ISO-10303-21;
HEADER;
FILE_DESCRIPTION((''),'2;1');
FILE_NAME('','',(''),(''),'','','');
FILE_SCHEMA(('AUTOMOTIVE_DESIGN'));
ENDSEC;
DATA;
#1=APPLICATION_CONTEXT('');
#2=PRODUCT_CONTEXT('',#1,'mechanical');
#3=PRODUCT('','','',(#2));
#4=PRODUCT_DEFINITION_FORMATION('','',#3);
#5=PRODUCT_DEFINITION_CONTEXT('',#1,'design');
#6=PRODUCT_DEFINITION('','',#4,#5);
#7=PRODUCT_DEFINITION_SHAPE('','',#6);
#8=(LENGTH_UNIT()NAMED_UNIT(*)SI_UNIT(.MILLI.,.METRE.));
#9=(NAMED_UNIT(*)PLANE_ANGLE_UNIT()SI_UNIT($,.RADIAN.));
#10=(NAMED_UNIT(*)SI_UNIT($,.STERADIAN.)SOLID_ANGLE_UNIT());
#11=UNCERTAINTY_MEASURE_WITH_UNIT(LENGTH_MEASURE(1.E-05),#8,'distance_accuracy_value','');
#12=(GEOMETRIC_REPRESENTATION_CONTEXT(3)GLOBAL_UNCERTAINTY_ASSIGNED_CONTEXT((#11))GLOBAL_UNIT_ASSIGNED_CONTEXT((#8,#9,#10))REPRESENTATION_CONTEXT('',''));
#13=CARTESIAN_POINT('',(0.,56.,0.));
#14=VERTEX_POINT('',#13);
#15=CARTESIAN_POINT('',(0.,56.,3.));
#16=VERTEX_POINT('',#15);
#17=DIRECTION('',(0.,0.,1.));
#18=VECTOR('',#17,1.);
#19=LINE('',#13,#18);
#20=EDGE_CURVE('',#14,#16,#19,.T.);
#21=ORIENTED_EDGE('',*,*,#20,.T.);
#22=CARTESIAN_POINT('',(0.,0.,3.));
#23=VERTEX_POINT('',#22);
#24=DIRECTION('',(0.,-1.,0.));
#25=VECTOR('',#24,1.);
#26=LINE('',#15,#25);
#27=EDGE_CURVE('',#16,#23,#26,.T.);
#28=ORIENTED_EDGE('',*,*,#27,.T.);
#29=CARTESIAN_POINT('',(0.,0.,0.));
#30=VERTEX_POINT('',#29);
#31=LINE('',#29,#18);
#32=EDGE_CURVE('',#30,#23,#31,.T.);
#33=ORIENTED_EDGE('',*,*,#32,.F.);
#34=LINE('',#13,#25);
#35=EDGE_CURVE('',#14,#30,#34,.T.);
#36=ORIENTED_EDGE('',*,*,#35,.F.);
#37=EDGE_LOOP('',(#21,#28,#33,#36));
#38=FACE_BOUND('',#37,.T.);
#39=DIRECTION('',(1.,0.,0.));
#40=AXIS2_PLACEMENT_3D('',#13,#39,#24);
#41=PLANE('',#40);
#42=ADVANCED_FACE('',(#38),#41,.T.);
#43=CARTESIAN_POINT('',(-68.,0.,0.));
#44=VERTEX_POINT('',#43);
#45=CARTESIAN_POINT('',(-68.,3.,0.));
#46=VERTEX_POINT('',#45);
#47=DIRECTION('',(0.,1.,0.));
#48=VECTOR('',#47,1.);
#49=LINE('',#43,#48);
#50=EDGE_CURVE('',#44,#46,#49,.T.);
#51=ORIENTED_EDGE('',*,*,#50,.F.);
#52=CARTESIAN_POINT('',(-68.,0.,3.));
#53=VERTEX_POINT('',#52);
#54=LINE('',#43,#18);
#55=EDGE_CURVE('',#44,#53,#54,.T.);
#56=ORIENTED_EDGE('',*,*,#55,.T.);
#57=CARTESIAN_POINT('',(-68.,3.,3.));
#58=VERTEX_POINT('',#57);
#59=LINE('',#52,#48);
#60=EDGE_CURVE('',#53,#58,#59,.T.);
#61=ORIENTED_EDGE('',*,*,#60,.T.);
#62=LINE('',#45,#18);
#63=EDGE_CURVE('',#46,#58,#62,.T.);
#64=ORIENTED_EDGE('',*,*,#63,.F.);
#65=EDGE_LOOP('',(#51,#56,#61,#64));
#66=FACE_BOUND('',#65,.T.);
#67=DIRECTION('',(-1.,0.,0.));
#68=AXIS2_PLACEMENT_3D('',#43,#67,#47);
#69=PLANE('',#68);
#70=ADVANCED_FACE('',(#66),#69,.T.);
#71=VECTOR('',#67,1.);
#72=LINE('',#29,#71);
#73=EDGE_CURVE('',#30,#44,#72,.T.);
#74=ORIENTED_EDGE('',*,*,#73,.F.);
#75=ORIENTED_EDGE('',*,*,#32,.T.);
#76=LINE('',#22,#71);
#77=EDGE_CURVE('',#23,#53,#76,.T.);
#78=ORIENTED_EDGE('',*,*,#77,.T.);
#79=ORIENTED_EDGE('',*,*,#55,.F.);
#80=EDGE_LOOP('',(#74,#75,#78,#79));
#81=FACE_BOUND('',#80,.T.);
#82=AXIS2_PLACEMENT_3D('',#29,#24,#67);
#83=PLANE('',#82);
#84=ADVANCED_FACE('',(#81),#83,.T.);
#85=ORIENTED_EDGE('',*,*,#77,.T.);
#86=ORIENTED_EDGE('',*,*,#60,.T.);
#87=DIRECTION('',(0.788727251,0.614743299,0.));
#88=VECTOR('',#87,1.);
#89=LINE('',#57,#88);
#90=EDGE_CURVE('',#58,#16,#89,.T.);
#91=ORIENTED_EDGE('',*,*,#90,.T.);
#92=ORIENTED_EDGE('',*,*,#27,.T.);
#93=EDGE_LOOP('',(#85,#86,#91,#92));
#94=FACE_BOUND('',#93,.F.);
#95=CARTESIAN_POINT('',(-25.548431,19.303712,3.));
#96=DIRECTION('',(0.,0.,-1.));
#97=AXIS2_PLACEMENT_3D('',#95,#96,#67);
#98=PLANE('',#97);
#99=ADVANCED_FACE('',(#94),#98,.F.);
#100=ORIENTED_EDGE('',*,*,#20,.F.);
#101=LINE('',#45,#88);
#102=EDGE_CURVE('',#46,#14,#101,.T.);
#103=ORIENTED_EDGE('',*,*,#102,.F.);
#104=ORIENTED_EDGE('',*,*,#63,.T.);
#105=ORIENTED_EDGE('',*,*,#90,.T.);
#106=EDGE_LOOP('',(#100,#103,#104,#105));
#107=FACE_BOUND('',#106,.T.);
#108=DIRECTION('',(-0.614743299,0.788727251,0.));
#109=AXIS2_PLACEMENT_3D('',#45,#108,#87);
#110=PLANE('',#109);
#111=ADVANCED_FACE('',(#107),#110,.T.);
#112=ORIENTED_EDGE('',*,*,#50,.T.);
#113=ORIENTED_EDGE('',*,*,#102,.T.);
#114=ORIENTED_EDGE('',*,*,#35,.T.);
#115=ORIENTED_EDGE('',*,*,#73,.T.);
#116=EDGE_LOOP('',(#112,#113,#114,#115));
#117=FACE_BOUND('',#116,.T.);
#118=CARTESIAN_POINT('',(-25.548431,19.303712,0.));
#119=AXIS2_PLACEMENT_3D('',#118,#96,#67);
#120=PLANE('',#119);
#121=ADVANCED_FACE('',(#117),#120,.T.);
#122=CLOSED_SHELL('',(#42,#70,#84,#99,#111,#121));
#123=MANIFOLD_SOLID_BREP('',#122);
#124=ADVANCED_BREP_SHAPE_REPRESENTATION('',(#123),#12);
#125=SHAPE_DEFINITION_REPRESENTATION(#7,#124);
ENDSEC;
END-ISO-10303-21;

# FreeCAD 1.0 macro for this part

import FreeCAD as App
import Part
import Sketcher

V = App.Vector
Q = App.Units.Quantity

doc = App.newDocument("Part")
params = doc.addObject("Spreadsheet::Sheet", "Params")
for row, (alias, value) in enumerate([
    ("sketch1_width", "68 mm"),
    ("sketch1_height", "56 mm"),
    ("sketch1_height2", "3 mm"),
    ("pad1_length", "3 mm"),
], start=1):
    params.set(f"A{row}", alias)
    params.set(f"B{row}", "=" + value)
    params.setAlias(f"B{row}", alias)

body = doc.addObject("PartDesign::Body", "Body")

# Sketch on XY plane
sketch1 = body.newObject("Sketcher::SketchObject", "Sketch")
sketch1.AttachmentSupport = (doc.getObject("XY_Plane"), [""])
sketch1.MapMode = "FlatFace"
sketch1.addGeometry(Part.LineSegment(V(-68, 0, 0), V(0, 0, 0)), False)
sketch1.addGeometry(Part.LineSegment(V(0, 0, 0), V(0, 56, 0)), False)
sketch1.addGeometry(Part.LineSegment(V(0, 56, 0), V(-68, 3, 0)), False)
sketch1.addGeometry(Part.LineSegment(V(-68, 3, 0), V(-68, 0, 0)), False)
sketch1.addConstraint(Sketcher.Constraint("Coincident", 0, 2, 1, 1))
sketch1.addConstraint(Sketcher.Constraint("Coincident", 1, 2, 2, 1))
sketch1.addConstraint(Sketcher.Constraint("Coincident", 2, 2, 3, 1))
sketch1.addConstraint(Sketcher.Constraint("Coincident", 3, 2, 0, 1))
sketch1.addConstraint(Sketcher.Constraint("Horizontal", 0))
sketch1.addConstraint(Sketcher.Constraint("Vertical", 1))
sketch1.addConstraint(Sketcher.Constraint("Vertical", 3))
sketch1.addConstraint(Sketcher.Constraint("Coincident", 0, 2, -1, 1))
sketch1.addConstraint(Sketcher.Constraint("DistanceX", 0, 1, 0, 2, Q("68 mm")))
sketch1.addConstraint(Sketcher.Constraint("DistanceY", 1, 1, 1, 2, Q("56 mm")))
sketch1.addConstraint(Sketcher.Constraint("DistanceY", 3, 2, 3, 1, Q("3 mm")))
sketch1.setExpression("Constraints[8]", "Params.sketch1_width")
sketch1.setExpression("Constraints[9]", "Params.sketch1_height")
sketch1.setExpression("Constraints[10]", "Params.sketch1_height2")
pad1 = body.newObject("PartDesign::Pad", "Pad")
pad1.Profile = sketch1
pad1.setExpression("Length", "Params.pad1_length")

doc.recompute()
